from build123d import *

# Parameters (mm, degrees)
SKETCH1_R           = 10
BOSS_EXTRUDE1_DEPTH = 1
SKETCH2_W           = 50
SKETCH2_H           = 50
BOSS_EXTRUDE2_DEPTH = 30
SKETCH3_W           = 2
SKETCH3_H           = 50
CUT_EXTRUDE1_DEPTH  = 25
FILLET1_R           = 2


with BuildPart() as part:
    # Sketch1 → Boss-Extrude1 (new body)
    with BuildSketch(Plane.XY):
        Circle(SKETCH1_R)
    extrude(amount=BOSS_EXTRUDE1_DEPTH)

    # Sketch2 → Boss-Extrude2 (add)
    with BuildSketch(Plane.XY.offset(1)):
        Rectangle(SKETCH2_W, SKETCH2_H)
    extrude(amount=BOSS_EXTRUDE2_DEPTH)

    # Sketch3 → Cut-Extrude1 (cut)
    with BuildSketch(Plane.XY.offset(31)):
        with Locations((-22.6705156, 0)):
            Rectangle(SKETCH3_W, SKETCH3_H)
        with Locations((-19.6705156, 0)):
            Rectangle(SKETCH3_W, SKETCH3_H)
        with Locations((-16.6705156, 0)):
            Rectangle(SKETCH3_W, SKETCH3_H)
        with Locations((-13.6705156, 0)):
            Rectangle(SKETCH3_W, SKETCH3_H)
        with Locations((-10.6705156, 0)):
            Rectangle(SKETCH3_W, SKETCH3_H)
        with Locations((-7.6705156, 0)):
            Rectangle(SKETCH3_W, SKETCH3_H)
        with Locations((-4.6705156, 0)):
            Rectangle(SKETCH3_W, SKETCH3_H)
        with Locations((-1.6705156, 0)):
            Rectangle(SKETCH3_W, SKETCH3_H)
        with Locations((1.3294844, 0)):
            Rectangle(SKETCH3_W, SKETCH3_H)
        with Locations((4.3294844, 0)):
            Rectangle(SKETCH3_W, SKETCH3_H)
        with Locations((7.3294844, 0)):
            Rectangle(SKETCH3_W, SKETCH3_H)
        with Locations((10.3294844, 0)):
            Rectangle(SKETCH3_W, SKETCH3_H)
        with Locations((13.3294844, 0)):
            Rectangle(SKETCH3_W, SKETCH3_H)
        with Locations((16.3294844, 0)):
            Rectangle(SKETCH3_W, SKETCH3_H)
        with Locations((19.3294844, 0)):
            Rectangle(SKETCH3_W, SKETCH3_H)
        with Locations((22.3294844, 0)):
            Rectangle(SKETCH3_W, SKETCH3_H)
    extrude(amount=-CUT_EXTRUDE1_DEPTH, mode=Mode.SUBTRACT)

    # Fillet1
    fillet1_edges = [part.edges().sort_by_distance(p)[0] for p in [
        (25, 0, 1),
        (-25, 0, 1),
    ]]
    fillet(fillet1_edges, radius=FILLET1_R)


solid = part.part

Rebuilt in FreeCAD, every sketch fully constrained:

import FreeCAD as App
import Part
import Sketcher
from FreeCAD import Vector
Q = App.Units.Quantity


def edges_at(feature, points):
    """Names of the edges that pass closest to the given points."""
    edges = feature.Shape.Edges
    near = lambda p: min(range(len(edges)), key=lambda i: edges[i].distToShape(Part.Vertex(*p))[0])
    return sorted({f"Edge{near(p) + 1}" for p in points})

doc = App.newDocument("Part")
params = doc.addObject("Spreadsheet::Sheet", "Params")
for row, (alias, value) in enumerate([
    ("sketch1_diameter", "20 mm"),
    ("pad1_length", "1 mm"),
    ("sketch2_width", "50 mm"),
    ("pad2_length", "30 mm"),
    ("sketch3_width", "2 mm"),
    ("sketch3_height", "50 mm"),
    ("pocket1_length", "25 mm"),
    ("fillet_radius", "2 mm"),
], start=1):
    params.set(f"A{row}", alias)
    params.set(f"B{row}", "=" + value)
    params.setAlias(f"B{row}", alias)

body = doc.addObject("PartDesign::Body", "Body")

sketch1 = body.newObject("Sketcher::SketchObject", "Sketch")
sketch1.AttachmentSupport = (doc.getObject("XY_Plane"), [""])
sketch1.MapMode = "FlatFace"
sketch1.addGeometry(Part.Circle(Vector(0, 0, 0), Vector(0, 0, 1), 10), False)
sketch1.addConstraint([
    Sketcher.Constraint("Coincident", 0, 3, -1, 1),
    Sketcher.Constraint("Diameter", 0, Q("20 mm")),
])
sketch1.setExpression("Constraints[1]", "Params.sketch1_diameter")
pad1 = body.newObject("PartDesign::Pad", "Pad")
pad1.Profile = sketch1
pad1.setExpression("Length", "Params.pad1_length")

sketch2 = body.newObject("Sketcher::SketchObject", "Sketch001")
sketch2.AttachmentSupport = (doc.getObject("XY_Plane"), [""])
sketch2.MapMode = "FlatFace"
sketch2.AttachmentOffset = App.Placement(Vector(0, 0, 1), App.Rotation())
sketch2.addGeometry([
    Part.LineSegment(Vector(-25, 25, 0), Vector(-25, -25, 0)),
    Part.LineSegment(Vector(-25, -25, 0), Vector(25, -25, 0)),
    Part.LineSegment(Vector(25, -25, 0), Vector(25, 25, 0)),
    Part.LineSegment(Vector(25, 25, 0), Vector(-25, 25, 0)),
], False)
sketch2.addConstraint([
    Sketcher.Constraint("Coincident", 0, 2, 1, 1),
    Sketcher.Constraint("Coincident", 1, 2, 2, 1),
    Sketcher.Constraint("Coincident", 2, 2, 3, 1),
    Sketcher.Constraint("Coincident", 3, 2, 0, 1),
    Sketcher.Constraint("Vertical", 0),
    Sketcher.Constraint("Horizontal", 1),
    Sketcher.Constraint("Vertical", 2),
    Sketcher.Constraint("Horizontal", 3),
    Sketcher.Constraint("Symmetric", 0, 2, 2, 2, -1, 1),
    Sketcher.Constraint("Equal", 3, 0),
    Sketcher.Constraint("DistanceX", 1, 1, 1, 2, Q("50 mm")),
])
sketch2.setExpression("Constraints[10]", "Params.sketch2_width")
pad2 = body.newObject("PartDesign::Pad", "Pad001")
pad2.Profile = sketch2
pad2.setExpression("Length", "Params.pad2_length")

sketch3 = body.newObject("Sketcher::SketchObject", "Sketch002")
sketch3.AttachmentSupport = (doc.getObject("XY_Plane"), [""])
sketch3.MapMode = "FlatFace"
sketch3.AttachmentOffset = App.Placement(Vector(0, 0, 31), App.Rotation())
sketch3.addGeometry([
    Part.LineSegment(Vector(-23.7, 25, 0), Vector(-23.7, -25, 0)),
    Part.LineSegment(Vector(-23.7, -25, 0), Vector(-21.7, -25, 0)),
    Part.LineSegment(Vector(-21.7, -25, 0), Vector(-21.7, 25, 0)),
    Part.LineSegment(Vector(-21.7, 25, 0), Vector(-23.7, 25, 0)),
    Part.LineSegment(Vector(-20.7, 25, 0), Vector(-20.7, -25, 0)),
    Part.LineSegment(Vector(-20.7, -25, 0), Vector(-18.7, -25, 0)),
    Part.LineSegment(Vector(-18.7, -25, 0), Vector(-18.7, 25, 0)),
    Part.LineSegment(Vector(-18.7, 25, 0), Vector(-20.7, 25, 0)),
    Part.LineSegment(Vector(-17.7, 25, 0), Vector(-17.7, -25, 0)),
    Part.LineSegment(Vector(-17.7, -25, 0), Vector(-15.7, -25, 0)),
    Part.LineSegment(Vector(-15.7, -25, 0), Vector(-15.7, 25, 0)),
    Part.LineSegment(Vector(-15.7, 25, 0), Vector(-17.7, 25, 0)),
    Part.LineSegment(Vector(-14.7, 25, 0), Vector(-14.7, -25, 0)),
    Part.LineSegment(Vector(-14.7, -25, 0), Vector(-12.7, -25, 0)),
    Part.LineSegment(Vector(-12.7, -25, 0), Vector(-12.7, 25, 0)),
    Part.LineSegment(Vector(-12.7, 25, 0), Vector(-14.7, 25, 0)),
    Part.LineSegment(Vector(-11.7, 25, 0), Vector(-11.7, -25, 0)),
    Part.LineSegment(Vector(-11.7, -25, 0), Vector(-9.7, -25, 0)),
    Part.LineSegment(Vector(-9.7, -25, 0), Vector(-9.7, 25, 0)),
    Part.LineSegment(Vector(-9.7, 25, 0), Vector(-11.7, 25, 0)),
    Part.LineSegment(Vector(-8.7, 25, 0), Vector(-8.7, -25, 0)),
    Part.LineSegment(Vector(-8.7, -25, 0), Vector(-6.7, -25, 0)),
    Part.LineSegment(Vector(-6.7, -25, 0), Vector(-6.7, 25, 0)),
    Part.LineSegment(Vector(-6.7, 25, 0), Vector(-8.7, 25, 0)),
    Part.LineSegment(Vector(-5.7, 25, 0), Vector(-5.7, -25, 0)),
    Part.LineSegment(Vector(-5.7, -25, 0), Vector(-3.7, -25, 0)),
    Part.LineSegment(Vector(-3.7, -25, 0), Vector(-3.7, 25, 0)),
    Part.LineSegment(Vector(-3.7, 25, 0), Vector(-5.7, 25, 0)),
    Part.LineSegment(Vector(-2.7, 25, 0), Vector(-2.7, -25, 0)),
    Part.LineSegment(Vector(-2.7, -25, 0), Vector(-0.7, -25, 0)),
    Part.LineSegment(Vector(-0.7, -25, 0), Vector(-0.7, 25, 0)),
    Part.LineSegment(Vector(-0.7, 25, 0), Vector(-2.7, 25, 0)),
    Part.LineSegment(Vector(0.3, 25, 0), Vector(0.3, -25, 0)),
    Part.LineSegment(Vector(0.3, -25, 0), Vector(2.3, -25, 0)),
    Part.LineSegment(Vector(2.3, -25, 0), Vector(2.3, 25, 0)),
    Part.LineSegment(Vector(2.3, 25, 0), Vector(0.3, 25, 0)),
    Part.LineSegment(Vector(3.3, 25, 0), Vector(3.3, -25, 0)),
    Part.LineSegment(Vector(3.3, -25, 0), Vector(5.3, -25, 0)),
    Part.LineSegment(Vector(5.3, -25, 0), Vector(5.3, 25, 0)),
    Part.LineSegment(Vector(5.3, 25, 0), Vector(3.3, 25, 0)),
    Part.LineSegment(Vector(6.3, 25, 0), Vector(6.3, -25, 0)),
    Part.LineSegment(Vector(6.3, -25, 0), Vector(8.3, -25, 0)),
    Part.LineSegment(Vector(8.3, -25, 0), Vector(8.3, 25, 0)),
    Part.LineSegment(Vector(8.3, 25, 0), Vector(6.3, 25, 0)),
    Part.LineSegment(Vector(9.3, 25, 0), Vector(9.3, -25, 0)),
    Part.LineSegment(Vector(9.3, -25, 0), Vector(11.3, -25, 0)),
    Part.LineSegment(Vector(11.3, -25, 0), Vector(11.3, 25, 0)),
    Part.LineSegment(Vector(11.3, 25, 0), Vector(9.3, 25, 0)),
    Part.LineSegment(Vector(12.3, 25, 0), Vector(12.3, -25, 0)),
    Part.LineSegment(Vector(12.3, -25, 0), Vector(14.3, -25, 0)),
    Part.LineSegment(Vector(14.3, -25, 0), Vector(14.3, 25, 0)),
    Part.LineSegment(Vector(14.3, 25, 0), Vector(12.3, 25, 0)),
    Part.LineSegment(Vector(15.3, 25, 0), Vector(15.3, -25, 0)),
    Part.LineSegment(Vector(15.3, -25, 0), Vector(17.3, -25, 0)),
    Part.LineSegment(Vector(17.3, -25, 0), Vector(17.3, 25, 0)),
    Part.LineSegment(Vector(17.3, 25, 0), Vector(15.3, 25, 0)),
    Part.LineSegment(Vector(18.3, 25, 0), Vector(18.3, -25, 0)),
    Part.LineSegment(Vector(18.3, -25, 0), Vector(20.3, -25, 0)),
    Part.LineSegment(Vector(20.3, -25, 0), Vector(20.3, 25, 0)),
    Part.LineSegment(Vector(20.3, 25, 0), Vector(18.3, 25, 0)),
    Part.LineSegment(Vector(21.3, 25, 0), Vector(21.3, -25, 0)),
    Part.LineSegment(Vector(21.3, -25, 0), Vector(23.3, -25, 0)),
    Part.LineSegment(Vector(23.3, -25, 0), Vector(23.3, 25, 0)),
    Part.LineSegment(Vector(23.3, 25, 0), Vector(21.3, 25, 0)),
], False)
sketch3.addConstraint([
    Sketcher.Constraint("Coincident", 0, 2, 1, 1),
    Sketcher.Constraint("Coincident", 1, 2, 2, 1),
    Sketcher.Constraint("Coincident", 2, 2, 3, 1),
    Sketcher.Constraint("Coincident", 3, 2, 0, 1),
    Sketcher.Constraint("Coincident", 4, 2, 5, 1),
    Sketcher.Constraint("Coincident", 5, 2, 6, 1),
    Sketcher.Constraint("Coincident", 6, 2, 7, 1),
    Sketcher.Constraint("Coincident", 7, 2, 4, 1),
    Sketcher.Constraint("Coincident", 8, 2, 9, 1),
    Sketcher.Constraint("Coincident", 9, 2, 10, 1),
    Sketcher.Constraint("Coincident", 10, 2, 11, 1),
    Sketcher.Constraint("Coincident", 11, 2, 8, 1),
    Sketcher.Constraint("Coincident", 12, 2, 13, 1),
    Sketcher.Constraint("Coincident", 13, 2, 14, 1),
    Sketcher.Constraint("Coincident", 14, 2, 15, 1),
    Sketcher.Constraint("Coincident", 15, 2, 12, 1),
    Sketcher.Constraint("Coincident", 16, 2, 17, 1),
    Sketcher.Constraint("Coincident", 17, 2, 18, 1),
    Sketcher.Constraint("Coincident", 18, 2, 19, 1),
    Sketcher.Constraint("Coincident", 19, 2, 16, 1),
    Sketcher.Constraint("Coincident", 20, 2, 21, 1),
    Sketcher.Constraint("Coincident", 21, 2, 22, 1),
    Sketcher.Constraint("Coincident", 22, 2, 23, 1),
    Sketcher.Constraint("Coincident", 23, 2, 20, 1),
    Sketcher.Constraint("Coincident", 24, 2, 25, 1),
    Sketcher.Constraint("Coincident", 25, 2, 26, 1),
    Sketcher.Constraint("Coincident", 26, 2, 27, 1),
    Sketcher.Constraint("Coincident", 27, 2, 24, 1),
    Sketcher.Constraint("Coincident", 28, 2, 29, 1),
    Sketcher.Constraint("Coincident", 29, 2, 30, 1),
    Sketcher.Constraint("Coincident", 30, 2, 31, 1),
    Sketcher.Constraint("Coincident", 31, 2, 28, 1),
    Sketcher.Constraint("Coincident", 32, 2, 33, 1),
    Sketcher.Constraint("Coincident", 33, 2, 34, 1),
    Sketcher.Constraint("Coincident", 34, 2, 35, 1),
    Sketcher.Constraint("Coincident", 35, 2, 32, 1),
    Sketcher.Constraint("Coincident", 36, 2, 37, 1),
    Sketcher.Constraint("Coincident", 37, 2, 38, 1),
    Sketcher.Constraint("Coincident", 38, 2, 39, 1),
    Sketcher.Constraint("Coincident", 39, 2, 36, 1),
    Sketcher.Constraint("Coincident", 40, 2, 41, 1),
    Sketcher.Constraint("Coincident", 41, 2, 42, 1),
    Sketcher.Constraint("Coincident", 42, 2, 43, 1),
    Sketcher.Constraint("Coincident", 43, 2, 40, 1),
    Sketcher.Constraint("Coincident", 44, 2, 45, 1),
    Sketcher.Constraint("Coincident", 45, 2, 46, 1),
    Sketcher.Constraint("Coincident", 46, 2, 47, 1),
    Sketcher.Constraint("Coincident", 47, 2, 44, 1),
    Sketcher.Constraint("Coincident", 48, 2, 49, 1),
    Sketcher.Constraint("Coincident", 49, 2, 50, 1),
    Sketcher.Constraint("Coincident", 50, 2, 51, 1),
    Sketcher.Constraint("Coincident", 51, 2, 48, 1),
    Sketcher.Constraint("Coincident", 52, 2, 53, 1),
    Sketcher.Constraint("Coincident", 53, 2, 54, 1),
    Sketcher.Constraint("Coincident", 54, 2, 55, 1),
    Sketcher.Constraint("Coincident", 55, 2, 52, 1),
    Sketcher.Constraint("Coincident", 56, 2, 57, 1),
    Sketcher.Constraint("Coincident", 57, 2, 58, 1),
    Sketcher.Constraint("Coincident", 58, 2, 59, 1),
    Sketcher.Constraint("Coincident", 59, 2, 56, 1),
    Sketcher.Constraint("Coincident", 60, 2, 61, 1),
    Sketcher.Constraint("Coincident", 61, 2, 62, 1),
    Sketcher.Constraint("Coincident", 62, 2, 63, 1),
    Sketcher.Constraint("Coincident", 63, 2, 60, 1),
    Sketcher.Constraint("Vertical", 0),
    Sketcher.Constraint("Horizontal", 1),
    Sketcher.Constraint("Vertical", 2),
    Sketcher.Constraint("Horizontal", 3),
    Sketcher.Constraint("Vertical", 4),
    Sketcher.Constraint("Horizontal", 5),
    Sketcher.Constraint("Vertical", 6),
    Sketcher.Constraint("Horizontal", 7),
    Sketcher.Constraint("Vertical", 8),
    Sketcher.Constraint("Horizontal", 9),
    Sketcher.Constraint("Vertical", 10),
    Sketcher.Constraint("Horizontal", 11),
    Sketcher.Constraint("Vertical", 12),
    Sketcher.Constraint("Horizontal", 13),
    Sketcher.Constraint("Vertical", 14),
    Sketcher.Constraint("Horizontal", 15),
    Sketcher.Constraint("Vertical", 16),
    Sketcher.Constraint("Horizontal", 17),
    Sketcher.Constraint("Vertical", 18),
    Sketcher.Constraint("Horizontal", 19),
    Sketcher.Constraint("Vertical", 20),
    Sketcher.Constraint("Horizontal", 21),
    Sketcher.Constraint("Vertical", 22),
    Sketcher.Constraint("Horizontal", 23),
    Sketcher.Constraint("Vertical", 24),
    Sketcher.Constraint("Horizontal", 25),
    Sketcher.Constraint("Vertical", 26),
    Sketcher.Constraint("Horizontal", 27),
    Sketcher.Constraint("Vertical", 28),
    Sketcher.Constraint("Horizontal", 29),
    Sketcher.Constraint("Vertical", 30),
    Sketcher.Constraint("Horizontal", 31),
    Sketcher.Constraint("Vertical", 32),
    Sketcher.Constraint("Horizontal", 33),
    Sketcher.Constraint("Vertical", 34),
    Sketcher.Constraint("Horizontal", 35),
    Sketcher.Constraint("Vertical", 36),
    Sketcher.Constraint("Horizontal", 37),
    Sketcher.Constraint("Vertical", 38),
    Sketcher.Constraint("Horizontal", 39),
    Sketcher.Constraint("Vertical", 40),
    Sketcher.Constraint("Horizontal", 41),
    Sketcher.Constraint("Vertical", 42),
    Sketcher.Constraint("Horizontal", 43),
    Sketcher.Constraint("Vertical", 44),
    Sketcher.Constraint("Horizontal", 45),
    Sketcher.Constraint("Vertical", 46),
    Sketcher.Constraint("Horizontal", 47),
    Sketcher.Constraint("Vertical", 48),
    Sketcher.Constraint("Horizontal", 49),
    Sketcher.Constraint("Vertical", 50),
    Sketcher.Constraint("Horizontal", 51),
    Sketcher.Constraint("Vertical", 52),
    Sketcher.Constraint("Horizontal", 53),
    Sketcher.Constraint("Vertical", 54),
    Sketcher.Constraint("Horizontal", 55),
    Sketcher.Constraint("Vertical", 56),
    Sketcher.Constraint("Horizontal", 57),
    Sketcher.Constraint("Vertical", 58),
    Sketcher.Constraint("Horizontal", 59),
    Sketcher.Constraint("Vertical", 60),
    Sketcher.Constraint("Horizontal", 61),
    Sketcher.Constraint("Vertical", 62),
    Sketcher.Constraint("Horizontal", 63),
    Sketcher.Constraint("Horizontal", 1, 2, 4, 2),
    Sketcher.Constraint("Horizontal", 3, 2, 6, 2),
    Sketcher.Constraint("Horizontal", 5, 2, 8, 2),
    Sketcher.Constraint("Horizontal", 7, 2, 10, 2),
    Sketcher.Constraint("Horizontal", 9, 2, 12, 2),
    Sketcher.Constraint("Horizontal", 11, 2, 14, 2),
    Sketcher.Constraint("Horizontal", 13, 2, 16, 2),
    Sketcher.Constraint("Horizontal", 15, 2, 18, 2),
    Sketcher.Constraint("Horizontal", 17, 2, 20, 2),
    Sketcher.Constraint("Horizontal", 19, 2, 22, 2),
    Sketcher.Constraint("Horizontal", 21, 2, 24, 2),
    Sketcher.Constraint("Horizontal", 23, 2, 26, 2),
    Sketcher.Constraint("Horizontal", 25, 2, 28, 2),
    Sketcher.Constraint("Horizontal", 27, 2, 30, 2),
    Sketcher.Constraint("Horizontal", 29, 2, 32, 2),
    Sketcher.Constraint("Horizontal", 31, 2, 34, 2),
    Sketcher.Constraint("Horizontal", 33, 2, 36, 2),
    Sketcher.Constraint("Horizontal", 35, 2, 38, 2),
    Sketcher.Constraint("Horizontal", 37, 2, 40, 2),
    Sketcher.Constraint("Horizontal", 39, 2, 42, 2),
    Sketcher.Constraint("Horizontal", 41, 2, 44, 2),
    Sketcher.Constraint("Horizontal", 43, 2, 46, 2),
    Sketcher.Constraint("Horizontal", 45, 2, 48, 2),
    Sketcher.Constraint("Horizontal", 47, 2, 50, 2),
    Sketcher.Constraint("Horizontal", 49, 2, 52, 2),
    Sketcher.Constraint("Horizontal", 51, 2, 54, 2),
    Sketcher.Constraint("Horizontal", 53, 2, 56, 2),
    Sketcher.Constraint("Horizontal", 55, 2, 58, 2),
    Sketcher.Constraint("Horizontal", 57, 2, 60, 2),
    Sketcher.Constraint("Horizontal", 59, 2, 62, 2),
    Sketcher.Constraint("Equal", 3, 5),
    Sketcher.Constraint("Equal", 7, 9),
    Sketcher.Constraint("Equal", 11, 13),
    Sketcher.Constraint("Equal", 15, 17),
    Sketcher.Constraint("Equal", 19, 21),
    Sketcher.Constraint("Equal", 23, 25),
    Sketcher.Constraint("Equal", 27, 29),
    Sketcher.Constraint("Equal", 31, 33),
    Sketcher.Constraint("Equal", 35, 37),
    Sketcher.Constraint("Equal", 39, 41),
    Sketcher.Constraint("Equal", 43, 45),
    Sketcher.Constraint("Equal", 47, 49),
    Sketcher.Constraint("Equal", 51, 53),
    Sketcher.Constraint("Equal", 55, 57),
    Sketcher.Constraint("Equal", 59, 61),
    Sketcher.Constraint("DistanceX", 1, 1, 1, 2, Q("2 mm")),
    Sketcher.Constraint("DistanceY", 0, 2, 0, 1, Q("50 mm")),
    Sketcher.Constraint("DistanceY", 0, 2, -1, 1, Q("25 mm")),
    Sketcher.Constraint("DistanceX", 0, 2, -1, 1, Q("23.670516 mm")),
    Sketcher.Constraint("DistanceX", 4, 2, -1, 1, Q("20.670516 mm")),
    Sketcher.Constraint("DistanceX", 8, 2, -1, 1, Q("17.670516 mm")),
    Sketcher.Constraint("DistanceX", 12, 2, -1, 1, Q("14.670516 mm")),
    Sketcher.Constraint("DistanceX", 16, 2, -1, 1, Q("11.670516 mm")),
    Sketcher.Constraint("DistanceX", 20, 2, -1, 1, Q("8.670516 mm")),
    Sketcher.Constraint("DistanceX", 24, 2, -1, 1, Q("5.670516 mm")),
    Sketcher.Constraint("DistanceX", 28, 2, -1, 1, Q("2.670516 mm")),
    Sketcher.Constraint("DistanceX", -1, 1, 32, 2, Q("0.329484 mm")),
    Sketcher.Constraint("DistanceX", -1, 1, 36, 2, Q("3.329484 mm")),
    Sketcher.Constraint("DistanceX", -1, 1, 40, 2, Q("6.329484 mm")),
    Sketcher.Constraint("DistanceX", -1, 1, 44, 2, Q("9.329484 mm")),
    Sketcher.Constraint("DistanceX", -1, 1, 48, 2, Q("12.329484 mm")),
    Sketcher.Constraint("DistanceX", -1, 1, 52, 2, Q("15.329484 mm")),
    Sketcher.Constraint("DistanceX", -1, 1, 56, 2, Q("18.329484 mm")),
    Sketcher.Constraint("DistanceX", -1, 1, 60, 2, Q("21.329484 mm")),
])
sketch3.setExpression("Constraints[173]", "Params.sketch3_width")
sketch3.setExpression("Constraints[174]", "Params.sketch3_height")
pocket1 = body.newObject("PartDesign::Pocket", "Pocket")
pocket1.Profile = sketch3
pocket1.setExpression("Length", "Params.pocket1_length")
doc.recompute()

fillet = body.newObject("PartDesign::Fillet", "Fillet")
fillet.Base = (pocket1, edges_at(pocket1, [(25, 0, 1), (-25, 0, 1)]))
fillet.setExpression("Radius", "Params.fillet_radius")

doc.recompute()
